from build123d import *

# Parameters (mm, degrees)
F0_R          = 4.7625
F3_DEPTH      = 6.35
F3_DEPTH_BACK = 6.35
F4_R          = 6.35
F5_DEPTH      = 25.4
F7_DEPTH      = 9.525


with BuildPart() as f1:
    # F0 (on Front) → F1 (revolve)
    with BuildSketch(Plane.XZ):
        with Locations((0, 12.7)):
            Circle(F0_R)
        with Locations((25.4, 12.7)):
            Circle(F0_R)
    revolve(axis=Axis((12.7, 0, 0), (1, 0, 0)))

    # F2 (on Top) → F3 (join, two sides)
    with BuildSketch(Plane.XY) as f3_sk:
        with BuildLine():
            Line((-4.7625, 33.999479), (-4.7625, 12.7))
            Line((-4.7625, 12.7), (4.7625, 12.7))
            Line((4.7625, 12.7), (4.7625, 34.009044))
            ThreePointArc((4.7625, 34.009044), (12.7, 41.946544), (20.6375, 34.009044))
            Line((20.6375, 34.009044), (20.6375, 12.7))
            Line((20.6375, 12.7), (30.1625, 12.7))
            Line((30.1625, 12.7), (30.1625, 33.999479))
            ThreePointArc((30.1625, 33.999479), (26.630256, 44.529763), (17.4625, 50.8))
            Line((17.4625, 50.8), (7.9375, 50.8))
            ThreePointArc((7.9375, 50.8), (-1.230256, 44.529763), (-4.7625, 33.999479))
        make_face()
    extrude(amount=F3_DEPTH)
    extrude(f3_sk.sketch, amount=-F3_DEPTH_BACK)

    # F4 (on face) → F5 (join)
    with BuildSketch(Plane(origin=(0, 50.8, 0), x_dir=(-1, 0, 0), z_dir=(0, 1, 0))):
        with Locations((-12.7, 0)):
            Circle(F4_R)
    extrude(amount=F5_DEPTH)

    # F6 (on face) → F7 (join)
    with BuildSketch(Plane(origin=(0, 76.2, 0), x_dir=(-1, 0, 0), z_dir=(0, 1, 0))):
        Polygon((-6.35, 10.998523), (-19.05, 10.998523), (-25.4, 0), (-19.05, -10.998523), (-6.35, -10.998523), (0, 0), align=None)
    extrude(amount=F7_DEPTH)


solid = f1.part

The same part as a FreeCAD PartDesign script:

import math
import FreeCAD as App
import Part
import Sketcher

V = App.Vector
Q = App.Units.Quantity

doc = App.newDocument("Part")
params = doc.addObject("Spreadsheet::Sheet", "Params")
for row, (alias, value) in enumerate([
    ("sketch1_diameter", "0.375 in"),
    ("revolution_angle", "360 deg"),
    ("sketch2_radius", "0.3125 in"),
    ("sketch2_radius2", "0.6875 in"),
    ("pad1_length", "0.25 in"),
    ("pad1_length2", "0.25 in"),
    ("sketch3_diameter", "0.5 in"),
    ("pad2_length", "1 in"),
    ("sketch4_width", "0.5 in"),
    ("pad3_length", "0.375 in"),
], start=1):
    params.set(f"A{row}", alias)
    params.set(f"B{row}", "=" + value)
    params.setAlias(f"B{row}", alias)

body = doc.addObject("PartDesign::Body", "Body")
body.AllowCompound = True

sketch1 = body.newObject("Sketcher::SketchObject", "Sketch")
sketch1.AttachmentSupport = (doc.getObject("XZ_Plane"), [""])
sketch1.MapMode = "FlatFace"
sketch1.addGeometry([
    Part.Circle(V(0, 12.7, 0), V(0, 0, 1), 4.8),
    Part.Circle(V(25.4, 12.7, 0), V(0, 0, 1), 4.8),
], False)
sketch1.addConstraint([
    Sketcher.Constraint("Equal", 0, 1),
    Sketcher.Constraint("PointOnObject", 0, 3, -2),
    Sketcher.Constraint("Horizontal", 0, 3, 1, 3),
    Sketcher.Constraint("Diameter", 0, Q("0.375 in")),
    Sketcher.Constraint("DistanceX", -1, 1, 1, 3, Q("1 in")),
    Sketcher.Constraint("DistanceY", -1, 1, 0, 3, Q("0.5 in")),
])
sketch1.setExpression("Constraints[3]", "Params.sketch1_diameter")
revolution = body.newObject("PartDesign::Revolution", "Revolution")
revolution.Profile = sketch1
revolution.ReferenceAxis = (sketch1, ["H_Axis"])
revolution.setExpression("Angle", "Params.revolution_angle")

sketch2 = body.newObject("Sketcher::SketchObject", "Sketch001")
sketch2.AttachmentSupport = (doc.getObject("XY_Plane"), [""])
sketch2.MapMode = "FlatFace"
sketch2.addGeometry([
    Part.LineSegment(V(-5, 34, 0), V(-5, 13, 0)),
    Part.LineSegment(V(-5, 13, 0), V(5, 13, 0)),
    Part.LineSegment(V(5, 13, 0), V(5, 34, 0)),
    Part.ArcOfCircle(Part.Circle(V(13, 34, 0), V(0, 0, 1), 8), math.radians(0), math.radians(180)),
    Part.LineSegment(V(21, 34, 0), V(21, 13, 0)),
    Part.LineSegment(V(21, 13, 0), V(30, 13, 0)),
    Part.LineSegment(V(30, 13, 0), V(30, 34, 0)),
    Part.ArcOfCircle(Part.Circle(V(13, 34, 0), V(0, 0, 1), 17), math.radians(0), math.radians(74)),
    Part.LineSegment(V(17, 51, 0), V(8, 51, 0)),
    Part.ArcOfCircle(Part.Circle(V(13, 34, 0), V(0, 0, 1), 17), math.radians(106), math.radians(180)),
], False)
sketch2.addConstraint([
    Sketcher.Constraint("Coincident", 0, 2, 1, 1),
    Sketcher.Constraint("Coincident", 1, 2, 2, 1),
    Sketcher.Constraint("Tangent", 2, 2, 3, 2),
    Sketcher.Constraint("Tangent", 3, 1, 4, 1),
    Sketcher.Constraint("Coincident", 4, 2, 5, 1),
    Sketcher.Constraint("Coincident", 5, 2, 6, 1),
    Sketcher.Constraint("Tangent", 6, 2, 7, 1),
    Sketcher.Constraint("Coincident", 7, 2, 8, 1),
    Sketcher.Constraint("Coincident", 8, 2, 9, 1),
    Sketcher.Constraint("Tangent", 9, 2, 0, 1),
    Sketcher.Constraint("Vertical", 0),
    Sketcher.Constraint("Horizontal", 1),
    Sketcher.Constraint("Vertical", 2),
    Sketcher.Constraint("Vertical", 4),
    Sketcher.Constraint("Horizontal", 5),
    Sketcher.Constraint("Vertical", 6),
    Sketcher.Constraint("Horizontal", 8),
    Sketcher.Constraint("Coincident", 9, 3, 7, 3),
    Sketcher.Constraint("Equal", 7, 9),
    Sketcher.Constraint("Horizontal", 1, 2, 4, 2),
    Sketcher.Constraint("Vertical", 3, 3, 7, 3),
    Sketcher.Constraint("Equal", 5, 8),
    Sketcher.Constraint("DistanceY", -1, 1, 7, 2, Q("2 in")),
    Sketcher.Constraint("Radius", 3, Q("0.3125 in")),
    Sketcher.Constraint("Radius", 7, Q("0.6875 in")),
    Sketcher.Constraint("DistanceX", -1, 1, 3, 3, Q("0.5 in")),
    Sketcher.Constraint("DistanceY", -1, 1, 0, 2, Q("0.5 in")),
    Sketcher.Constraint("DistanceY", 2, 1, 2, 2, Q("21.309044 mm")),
])
sketch2.setExpression("Constraints[23]", "Params.sketch2_radius")
sketch2.setExpression("Constraints[24]", "Params.sketch2_radius2")
pad1 = body.newObject("PartDesign::Pad", "Pad")
pad1.Profile = sketch2
pad1.Type = "TwoLengths"
pad1.setExpression("Length", "Params.pad1_length")
pad1.setExpression("Length2", "Params.pad1_length2")

sketch3 = body.newObject("Sketcher::SketchObject", "Sketch002")
sketch3.AttachmentSupport = (doc.getObject("XZ_Plane"), [""])
sketch3.MapMode = "FlatFace"
sketch3.AttachmentOffset = App.Placement(V(0, 0, -2 * 25.4), App.Rotation())
sketch3.addGeometry(Part.Circle(V(13, 0, 0), V(0, 0, 1), 6), False)
sketch3.addConstraint([
    Sketcher.Constraint("PointOnObject", 0, 3, -1),
    Sketcher.Constraint("Diameter", 0, Q("0.5 in")),
    Sketcher.Constraint("DistanceX", -1, 1, 0, 3, Q("0.5 in")),
])
sketch3.setExpression("Constraints[1]", "Params.sketch3_diameter")
pad2 = body.newObject("PartDesign::Pad", "Pad001")
pad2.Profile = sketch3
pad2.setExpression("Length", "Params.pad2_length")
pad2.Reversed = True

sketch4 = body.newObject("Sketcher::SketchObject", "Sketch003")
sketch4.AttachmentSupport = (doc.getObject("XZ_Plane"), [""])
sketch4.MapMode = "FlatFace"
sketch4.AttachmentOffset = App.Placement(V(0, 0, -3 * 25.4), App.Rotation())
sketch4.addGeometry([
    Part.LineSegment(V(6, 11, 0), V(19, 11, 0)),
    Part.LineSegment(V(19, 11, 0), V(25, 0, 0)),
    Part.LineSegment(V(25, 0, 0), V(19, -11, 0)),
    Part.LineSegment(V(19, -11, 0), V(6, -11, 0)),
    Part.LineSegment(V(6, -11, 0), V(0, 0, 0)),
    Part.LineSegment(V(0, 0, 0), V(6, 11, 0)),
], False)
sketch4.addConstraint([
    Sketcher.Constraint("Coincident", 0, 2, 1, 1),
    Sketcher.Constraint("Coincident", 1, 2, 2, 1),
    Sketcher.Constraint("Coincident", 2, 2, 3, 1),
    Sketcher.Constraint("Coincident", 3, 2, 4, 1),
    Sketcher.Constraint("Coincident", 4, 2, 5, 1),
    Sketcher.Constraint("Coincident", 5, 2, 0, 1),
    Sketcher.Constraint("Horizontal", 0),
    Sketcher.Constraint("Horizontal", 3),
    Sketcher.Constraint("Coincident", 4, 2, -1, 1),
    Sketcher.Constraint("Symmetric", 0, 2, 2, 2, -1),
    Sketcher.Constraint("PointOnObject", 1, 2, -1),
    Sketcher.Constraint("Parallel", 1, 4),
    Sketcher.Constraint("Parallel", 2, 5),
    Sketcher.Constraint("DistanceX", 0, 1, 0, 2, Q("0.5 in")),
    Sketcher.Constraint("DistanceX", -1, 1, 1, 2, Q("1 in")),
    Sketcher.Constraint("Angle", 1, Q("-60.000001 deg")),
])
sketch4.setExpression("Constraints[13]", "Params.sketch4_width")
pad3 = body.newObject("PartDesign::Pad", "Pad002")
pad3.Profile = sketch4
pad3.setExpression("Length", "Params.pad3_length")
pad3.Reversed = True

doc.recompute()
